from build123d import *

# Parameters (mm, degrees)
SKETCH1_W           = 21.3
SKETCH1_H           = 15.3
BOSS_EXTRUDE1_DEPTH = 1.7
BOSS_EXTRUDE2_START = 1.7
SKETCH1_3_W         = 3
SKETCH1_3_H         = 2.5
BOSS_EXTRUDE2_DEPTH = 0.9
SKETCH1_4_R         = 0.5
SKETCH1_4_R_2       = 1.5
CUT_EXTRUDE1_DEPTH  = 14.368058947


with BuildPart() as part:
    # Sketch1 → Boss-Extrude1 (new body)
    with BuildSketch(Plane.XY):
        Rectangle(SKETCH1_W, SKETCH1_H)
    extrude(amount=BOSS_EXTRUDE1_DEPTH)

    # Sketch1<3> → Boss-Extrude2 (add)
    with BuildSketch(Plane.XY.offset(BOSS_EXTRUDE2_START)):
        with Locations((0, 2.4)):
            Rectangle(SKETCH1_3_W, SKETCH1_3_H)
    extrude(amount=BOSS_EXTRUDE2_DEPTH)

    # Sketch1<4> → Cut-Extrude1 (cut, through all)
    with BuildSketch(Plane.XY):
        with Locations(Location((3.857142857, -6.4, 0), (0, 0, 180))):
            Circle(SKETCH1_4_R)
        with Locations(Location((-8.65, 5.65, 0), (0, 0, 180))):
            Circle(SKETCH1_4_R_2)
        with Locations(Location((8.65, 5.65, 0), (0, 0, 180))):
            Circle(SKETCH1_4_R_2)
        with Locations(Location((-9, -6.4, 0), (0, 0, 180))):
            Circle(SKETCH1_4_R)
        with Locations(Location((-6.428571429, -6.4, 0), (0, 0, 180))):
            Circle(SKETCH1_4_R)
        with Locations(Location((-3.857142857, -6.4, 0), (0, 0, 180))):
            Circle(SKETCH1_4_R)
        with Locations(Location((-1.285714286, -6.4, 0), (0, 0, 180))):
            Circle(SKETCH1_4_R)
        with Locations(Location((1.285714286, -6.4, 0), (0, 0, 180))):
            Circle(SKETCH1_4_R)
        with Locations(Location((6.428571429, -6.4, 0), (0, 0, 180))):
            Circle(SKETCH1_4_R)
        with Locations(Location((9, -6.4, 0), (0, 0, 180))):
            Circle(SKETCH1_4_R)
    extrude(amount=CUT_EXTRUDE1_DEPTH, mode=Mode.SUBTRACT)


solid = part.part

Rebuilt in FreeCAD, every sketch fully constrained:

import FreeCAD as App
import Part
import Sketcher
from FreeCAD import Vector
Q = App.Units.Quantity


def add_polygon(sketch, points):
    """Adds a closed chain of lines whose ends are joined by coincident constraints."""
    first, n = sketch.GeometryCount, len(points)
    for a, b in zip(points, points[1:] + points[:1]):
        sketch.addGeometry(Part.LineSegment(App.Vector(*a, 0), App.Vector(*b, 0)), False)
    for i in range(n):
        sketch.addConstraint(Sketcher.Constraint("Coincident", first + i, 2, first + (i + 1) % n, 1))

doc = App.newDocument("Part")
params = doc.addObject("Spreadsheet::Sheet", "Params")
for row, (alias, value) in enumerate([
    ("sketch1_width", "21.3 mm"),
    ("sketch1_height", "15.3 mm"),
    ("pad1_length", "1.7 mm"),
    ("sketch2_width", "3 mm"),
    ("sketch2_height", "2.5 mm"),
    ("pad2_length", "0.9 mm"),
    ("sketch3_diameter", "1 mm"),
    ("sketch3_diameter2", "3 mm"),
], start=1):
    params.set(f"A{row}", alias)
    params.set(f"B{row}", "=" + value)
    params.setAlias(f"B{row}", alias)

body = doc.addObject("PartDesign::Body", "Body")

sketch1 = body.newObject("Sketcher::SketchObject", "Sketch")
sketch1.AttachmentSupport = (doc.getObject("XY_Plane"), [""])
sketch1.MapMode = "FlatFace"
add_polygon(sketch1, [(-10.65, 7.65), (-10.65, -7.65), (10.65, -7.65), (10.65, 7.65)])
sketch1.addConstraint([
    Sketcher.Constraint("Vertical", 0),
    Sketcher.Constraint("Horizontal", 1),
    Sketcher.Constraint("Vertical", 2),
    Sketcher.Constraint("Horizontal", 3),
    Sketcher.Constraint("Symmetric", 0, 2, 2, 2, -1, 1),
    Sketcher.Constraint("DistanceX", 1, 1, 1, 2, Q("21.3 mm")),
    Sketcher.Constraint("DistanceY", 0, 2, 0, 1, Q("15.3 mm")),
])
sketch1.setExpression("Constraints[9]", "Params.sketch1_width")
sketch1.setExpression("Constraints[10]", "Params.sketch1_height")
pad1 = body.newObject("PartDesign::Pad", "Pad")
pad1.Profile = sketch1
pad1.setExpression("Length", "Params.pad1_length")

sketch2 = body.newObject("Sketcher::SketchObject", "Sketch001")
sketch2.AttachmentSupport = (doc.getObject("XY_Plane"), [""])
sketch2.MapMode = "FlatFace"
sketch2.AttachmentOffset = App.Placement(Vector(0, 0, 1.7), App.Rotation())
add_polygon(sketch2, [(-1.5, 3.65), (-1.5, 1.15), (1.5, 1.15), (1.5, 3.65)])
sketch2.addConstraint([
    Sketcher.Constraint("Vertical", 0),
    Sketcher.Constraint("Horizontal", 1),
    Sketcher.Constraint("Vertical", 2),
    Sketcher.Constraint("Horizontal", 3),
    Sketcher.Constraint("DistanceX", 1, 1, 1, 2, Q("3 mm")),
    Sketcher.Constraint("DistanceY", 0, 2, 0, 1, Q("2.5 mm")),
    Sketcher.Constraint("DistanceX", 0, 2, -1, 1, Q("1.5 mm")),
    Sketcher.Constraint("DistanceY", -1, 1, 0, 2, Q("1.15 mm")),
])
sketch2.setExpression("Constraints[8]", "Params.sketch2_width")
sketch2.setExpression("Constraints[9]", "Params.sketch2_height")
pad2 = body.newObject("PartDesign::Pad", "Pad001")
pad2.Profile = sketch2
pad2.setExpression("Length", "Params.pad2_length")

sketch3 = body.newObject("Sketcher::SketchObject", "Sketch002")
sketch3.AttachmentSupport = (doc.getObject("XY_Plane"), [""])
sketch3.MapMode = "FlatFace"
sketch3.addGeometry([
    Part.Circle(Vector(3.857143, -6.4, 0), Vector(0, 0, 1), 0.5),
    Part.Circle(Vector(-8.65, 5.65, 0), Vector(0, 0, 1), 1.5),
    Part.Circle(Vector(8.65, 5.65, 0), Vector(0, 0, 1), 1.5),
    Part.Circle(Vector(-9, -6.4, 0), Vector(0, 0, 1), 0.5),
    Part.Circle(Vector(-6.428571, -6.4, 0), Vector(0, 0, 1), 0.5),
    Part.Circle(Vector(-3.857143, -6.4, 0), Vector(0, 0, 1), 0.5),
    Part.Circle(Vector(-1.285714, -6.4, 0), Vector(0, 0, 1), 0.5),
    Part.Circle(Vector(1.285714, -6.4, 0), Vector(0, 0, 1), 0.5),
    Part.Circle(Vector(6.428571, -6.4, 0), Vector(0, 0, 1), 0.5),
    Part.Circle(Vector(9, -6.4, 0), Vector(0, 0, 1), 0.5),
], False)
sketch3.addConstraint([
    Sketcher.Constraint("Equal", 1, 2),
    Sketcher.Constraint("Equal", 0, 3),
    Sketcher.Constraint("Equal", 3, 4),
    Sketcher.Constraint("Equal", 4, 5),
    Sketcher.Constraint("Equal", 5, 6),
    Sketcher.Constraint("Equal", 6, 7),
    Sketcher.Constraint("Equal", 7, 8),
    Sketcher.Constraint("Equal", 8, 9),
    Sketcher.Constraint("Symmetric", 1, 3, 2, 3, -2),
    Sketcher.Constraint("Symmetric", 0, 3, 5, 3, -2),
    Sketcher.Constraint("Symmetric", 6, 3, 7, 3, -2),
    Sketcher.Constraint("Symmetric", 4, 3, 8, 3, -2),
    Sketcher.Constraint("Symmetric", 3, 3, 9, 3, -2),
    Sketcher.Constraint("Horizontal", 0, 3, 3, 3),
    Sketcher.Constraint("Horizontal", 3, 3, 4, 3),
    Sketcher.Constraint("Horizontal", 5, 3, 6, 3),
    Sketcher.Constraint("Diameter", 0, Q("1 mm")),
    Sketcher.Constraint("Diameter", 1, Q("3 mm")),
    Sketcher.Constraint("DistanceX", 3, 3, -1, 1, Q("9 mm")),
    Sketcher.Constraint("DistanceY", 0, 3, -1, 1, Q("6.4 mm")),
    Sketcher.Constraint("DistanceX", 1, 3, 2, 3, Q("17.3 mm")),
    Sketcher.Constraint("DistanceY", -1, 1, 1, 3, Q("5.65 mm")),
    Sketcher.Constraint("DistanceX", 4, 3, -1, 1, Q("6.428571 mm")),
    Sketcher.Constraint("DistanceX", 4, 3, 5, 3, Q("2.571429 mm")),
    Sketcher.Constraint("DistanceX", 5, 3, 6, 3, Q("2.571429 mm")),
])
sketch3.setExpression("Constraints[16]", "Params.sketch3_diameter")
sketch3.setExpression("Constraints[17]", "Params.sketch3_diameter2")
pocket1 = body.newObject("PartDesign::Pocket", "Pocket")
pocket1.Profile = sketch3
pocket1.Type = "ThroughAll"
pocket1.Reversed = True

doc.recompute()
